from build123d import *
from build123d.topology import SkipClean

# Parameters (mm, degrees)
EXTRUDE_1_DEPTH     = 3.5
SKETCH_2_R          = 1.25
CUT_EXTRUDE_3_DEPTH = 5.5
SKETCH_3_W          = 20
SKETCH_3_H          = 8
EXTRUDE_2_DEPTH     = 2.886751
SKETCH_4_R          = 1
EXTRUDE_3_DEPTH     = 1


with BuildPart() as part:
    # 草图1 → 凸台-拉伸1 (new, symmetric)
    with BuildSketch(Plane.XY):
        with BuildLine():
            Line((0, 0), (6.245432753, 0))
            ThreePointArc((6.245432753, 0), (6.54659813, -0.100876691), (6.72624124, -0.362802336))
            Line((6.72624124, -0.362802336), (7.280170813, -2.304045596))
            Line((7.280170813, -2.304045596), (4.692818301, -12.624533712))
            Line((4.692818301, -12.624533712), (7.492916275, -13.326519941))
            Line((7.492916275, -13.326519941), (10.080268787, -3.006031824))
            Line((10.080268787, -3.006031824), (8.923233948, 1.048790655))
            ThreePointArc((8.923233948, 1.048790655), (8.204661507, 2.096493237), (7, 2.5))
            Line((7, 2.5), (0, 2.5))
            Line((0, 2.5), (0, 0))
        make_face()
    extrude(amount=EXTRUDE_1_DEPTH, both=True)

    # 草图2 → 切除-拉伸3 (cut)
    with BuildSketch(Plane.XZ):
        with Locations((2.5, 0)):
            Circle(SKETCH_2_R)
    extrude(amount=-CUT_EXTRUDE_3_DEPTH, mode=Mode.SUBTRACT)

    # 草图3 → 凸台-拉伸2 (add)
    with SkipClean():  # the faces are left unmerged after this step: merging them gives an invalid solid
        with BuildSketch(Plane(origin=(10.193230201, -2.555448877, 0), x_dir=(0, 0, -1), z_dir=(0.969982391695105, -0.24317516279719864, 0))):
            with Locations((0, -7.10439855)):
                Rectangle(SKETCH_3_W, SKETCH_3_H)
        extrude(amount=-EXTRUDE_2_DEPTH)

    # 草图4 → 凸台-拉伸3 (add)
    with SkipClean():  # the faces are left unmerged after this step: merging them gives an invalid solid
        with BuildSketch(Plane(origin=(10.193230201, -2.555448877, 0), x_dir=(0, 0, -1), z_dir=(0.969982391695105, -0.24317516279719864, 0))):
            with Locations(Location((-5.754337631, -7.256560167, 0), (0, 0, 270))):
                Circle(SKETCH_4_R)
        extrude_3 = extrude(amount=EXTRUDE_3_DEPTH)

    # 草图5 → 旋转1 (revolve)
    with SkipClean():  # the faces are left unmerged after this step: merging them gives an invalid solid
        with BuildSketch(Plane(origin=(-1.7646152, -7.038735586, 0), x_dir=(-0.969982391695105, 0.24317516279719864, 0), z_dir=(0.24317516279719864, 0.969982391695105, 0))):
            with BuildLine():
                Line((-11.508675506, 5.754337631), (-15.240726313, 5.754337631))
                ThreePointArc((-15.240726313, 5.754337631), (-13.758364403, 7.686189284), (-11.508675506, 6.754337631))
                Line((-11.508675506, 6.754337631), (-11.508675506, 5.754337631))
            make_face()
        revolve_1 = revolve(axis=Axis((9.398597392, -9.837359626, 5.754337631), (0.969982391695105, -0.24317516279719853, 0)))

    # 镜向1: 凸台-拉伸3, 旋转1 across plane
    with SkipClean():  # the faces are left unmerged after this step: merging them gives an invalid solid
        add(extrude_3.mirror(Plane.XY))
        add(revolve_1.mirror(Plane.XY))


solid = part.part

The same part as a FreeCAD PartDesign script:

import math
import FreeCAD as App
import Part
import Sketcher

V = App.Vector
Q = App.Units.Quantity

doc = App.newDocument("Part")
body = doc.addObject("PartDesign::Body", "Body")

# Sketch on XY plane
sketch1 = body.newObject("Sketcher::SketchObject", "Sketch")
sketch1.AttachmentSupport = (doc.getObject("XY_Plane"), [""])
sketch1.MapMode = "FlatFace"
sketch1.addGeometry(Part.LineSegment(V(0, 0, 0), V(6.2, 0, 0)), False)
sketch1.addGeometry(Part.ArcOfCircle(Part.Circle(V(6.2, -0.5, 0), V(0, 0, 1), 0.5), math.radians(16), math.radians(90)), False)
sketch1.addGeometry(Part.LineSegment(V(6.7, -0.4, 0), V(7.3, -2.3, 0)), False)
sketch1.addGeometry(Part.LineSegment(V(7.3, -2.3, 0), V(4.7, -12.6, 0)), False)
sketch1.addGeometry(Part.LineSegment(V(4.7, -12.6, 0), V(7.5, -13.3, 0)), False)
sketch1.addGeometry(Part.LineSegment(V(7.5, -13.3, 0), V(10.1, -3, 0)), False)
sketch1.addGeometry(Part.LineSegment(V(10.1, -3, 0), V(8.9, 1, 0)), False)
sketch1.addGeometry(Part.ArcOfCircle(Part.Circle(V(7, 0.5, 0), V(0, 0, 1), 2), math.radians(16), math.radians(90)), False)
sketch1.addGeometry(Part.LineSegment(V(7, 2.5, 0), V(0, 2.5, 0)), False)
sketch1.addGeometry(Part.LineSegment(V(0, 2.5, 0), V(0, 0, 0)), False)
sketch1.addConstraint(Sketcher.Constraint("Tangent", 0, 2, 1, 2))
sketch1.addConstraint(Sketcher.Constraint("Tangent", 1, 1, 2, 1))
sketch1.addConstraint(Sketcher.Constraint("Coincident", 2, 2, 3, 1))
sketch1.addConstraint(Sketcher.Constraint("Coincident", 3, 2, 4, 1))
sketch1.addConstraint(Sketcher.Constraint("Coincident", 4, 2, 5, 1))
sketch1.addConstraint(Sketcher.Constraint("Coincident", 5, 2, 6, 1))
sketch1.addConstraint(Sketcher.Constraint("Tangent", 6, 2, 7, 1))
sketch1.addConstraint(Sketcher.Constraint("Tangent", 7, 2, 8, 1))
sketch1.addConstraint(Sketcher.Constraint("Coincident", 8, 2, 9, 1))
sketch1.addConstraint(Sketcher.Constraint("Coincident", 9, 2, 0, 1))
sketch1.addConstraint(Sketcher.Constraint("Horizontal", 0))
sketch1.addConstraint(Sketcher.Constraint("Horizontal", 8))
sketch1.addConstraint(Sketcher.Constraint("Vertical", 9))
sketch1.addConstraint(Sketcher.Constraint("Coincident", 9, 2, -1, 1))
sketch1.addConstraint(Sketcher.Constraint("Perpendicular", 3, 4))
sketch1.addConstraint(Sketcher.Constraint("Perpendicular", 4, 5))
sketch1.addConstraint(Sketcher.Constraint("Parallel", 2, 6))
sketch1.addConstraint(Sketcher.Constraint("Equal", 3, 5))
sketch1.addConstraint(Sketcher.Constraint("Radius", 7, Q("2 mm")))
sketch1.addConstraint(Sketcher.Constraint("Radius", 1, Q("0.5 mm")))
sketch1.addConstraint(Sketcher.Constraint("DistanceX", 8, 2, 8, 1, Q("7 mm")))
sketch1.addConstraint(Sketcher.Constraint("DistanceY", 9, 2, 9, 1, Q("2.5 mm")))
sketch1.addConstraint(Sketcher.Constraint("DistanceX", 0, 2, 6, 2, Q("2.677801 mm")))
sketch1.addConstraint(Sketcher.Constraint("Distance", 2, Q("2.018728 mm")))
sketch1.addConstraint(Sketcher.Constraint("Distance", 3, Q("10.639872 mm")))
sketch1.addConstraint(Sketcher.Constraint("Distance", 4, Q("2.886751 mm")))
sketch1.addConstraint(Sketcher.Constraint("Distance", 6, Q("4.216671 mm")))
pad1 = body.newObject("PartDesign::Pad", "Pad")
pad1.Profile = sketch1
pad1.Length = 7
pad1.Midplane = True

# Sketch on XZ plane
sketch2 = body.newObject("Sketcher::SketchObject", "Sketch001")
sketch2.AttachmentSupport = (doc.getObject("XZ_Plane"), [""])
sketch2.MapMode = "FlatFace"
sketch2.addGeometry(Part.Circle(V(2.5, 0, 0), V(0, 0, 1), 1.2), False)
sketch2.addConstraint(Sketcher.Constraint("PointOnObject", 0, 3, -1))
sketch2.addConstraint(Sketcher.Constraint("Diameter", 0, Q("2.5 mm")))
sketch2.addConstraint(Sketcher.Constraint("DistanceX", -1, 1, 0, 3, Q("2.5 mm")))
pocket1 = body.newObject("PartDesign::Pocket", "Pocket")
pocket1.Profile = sketch2
pocket1.Length = 5.5

# Sketch on an angled plane
sketch3 = body.newObject("Sketcher::SketchObject", "Sketch002")
sketch3.Placement = App.Placement(V(10.19323, -2.555449, 0), App.Rotation(V(0, 0, -1), V(0.243175163, 0.969982392, 0), V(0.969982392, -0.243175163, 0), "ZXY"))
sketch3.addGeometry(Part.LineSegment(V(-10, -3, 0), V(-10, -11, 0)), False)
sketch3.addGeometry(Part.LineSegment(V(-10, -11, 0), V(10, -11, 0)), False)
sketch3.addGeometry(Part.LineSegment(V(10, -11, 0), V(10, -3, 0)), False)
sketch3.addGeometry(Part.LineSegment(V(10, -3, 0), V(-10, -3, 0)), False)
sketch3.addConstraint(Sketcher.Constraint("Coincident", 0, 2, 1, 1))
sketch3.addConstraint(Sketcher.Constraint("Coincident", 1, 2, 2, 1))
sketch3.addConstraint(Sketcher.Constraint("Coincident", 2, 2, 3, 1))
sketch3.addConstraint(Sketcher.Constraint("Coincident", 3, 2, 0, 1))
sketch3.addConstraint(Sketcher.Constraint("Vertical", 0))
sketch3.addConstraint(Sketcher.Constraint("Horizontal", 1))
sketch3.addConstraint(Sketcher.Constraint("Vertical", 2))
sketch3.addConstraint(Sketcher.Constraint("Horizontal", 3))
sketch3.addConstraint(Sketcher.Constraint("DistanceX", 1, 1, 1, 2, Q("20 mm")))
sketch3.addConstraint(Sketcher.Constraint("DistanceY", 0, 2, 0, 1, Q("8 mm")))
sketch3.addConstraint(Sketcher.Constraint("DistanceX", 0, 2, -1, 1, Q("10 mm")))
sketch3.addConstraint(Sketcher.Constraint("DistanceY", 0, 2, -1, 1, Q("11.104399 mm")))
pad2 = body.newObject("PartDesign::Pad", "Pad001")
pad2.Profile = sketch3
pad2.Length = 2.886751
pad2.Reversed = True

# Sketch on an angled plane
sketch4 = body.newObject("Sketcher::SketchObject", "Sketch003")
sketch4.Placement = App.Placement(V(10.19323, -2.555449, 0), App.Rotation(V(0, 0, -1), V(0.243175163, 0.969982392, 0), V(0.969982392, -0.243175163, 0), "ZXY"))
sketch4.addGeometry(Part.Circle(V(-5.8, -7.3, 0), V(0, 0, 1), 1), False)
sketch4.addConstraint(Sketcher.Constraint("Diameter", 0, Q("2 mm")))
sketch4.addConstraint(Sketcher.Constraint("DistanceY", 0, 3, -1, 1, Q("7.25656 mm")))
sketch4.addConstraint(Sketcher.Constraint("DistanceX", 0, 3, -1, 1, Q("5.754338 mm")))
pad3 = body.newObject("PartDesign::Pad", "Pad002")
pad3.Profile = sketch4
pad3.Length = 1

# Sketch on an angled plane
sketch5 = body.newObject("Sketcher::SketchObject", "Sketch004")
sketch5.Placement = App.Placement(V(-1.764615, -7.038736, 0), App.Rotation(V(-0.969982392, 0.243175163, 0), V(0, 0, 1.000000001), V(0.243175163, 0.969982392, 0), "ZXY"))
sketch5.addGeometry(Part.LineSegment(V(-15.2, 5.8, 0), V(-11.5, 5.8, 0)), False)
sketch5.addGeometry(Part.LineSegment(V(-11.5, 5.8, 0), V(-11.5, 6.8, 0)), False)
sketch5.addGeometry(Part.ArcOfCircle(Part.Circle(V(-13.2, 5.8, 0), V(0, 0, 1), 2), math.radians(30), math.radians(180)), False)
sketch5.addGeometry(Part.LineSegment(V(-11.5, 5.8, 0), V(-15.2, 5.8, 0)), True)  # axis
sketch5.addConstraint(Sketcher.Constraint("Coincident", 0, 2, 1, 1))
sketch5.addConstraint(Sketcher.Constraint("Coincident", 1, 2, 2, 1))
sketch5.addConstraint(Sketcher.Constraint("Coincident", 2, 2, 0, 1))
sketch5.addConstraint(Sketcher.Constraint("Horizontal", 0))
sketch5.addConstraint(Sketcher.Constraint("Vertical", 1))
sketch5.addConstraint(Sketcher.Constraint("Horizontal", 3))
sketch5.addConstraint(Sketcher.Constraint("Coincident", 3, 1, 0, 2))
sketch5.addConstraint(Sketcher.Constraint("Horizontal", 2, 3, 0, 2))
sketch5.addConstraint(Sketcher.Constraint("Equal", 0, 3))
sketch5.addConstraint(Sketcher.Constraint("Radius", 2, Q("2 mm")))
sketch5.addConstraint(Sketcher.Constraint("DistanceY", 1, 1, 1, 2, Q("1 mm")))
sketch5.addConstraint(Sketcher.Constraint("DistanceX", 2, 3, -1, 1, Q("13.240726 mm")))
sketch5.addConstraint(Sketcher.Constraint("DistanceY", -1, 1, 2, 3, Q("5.754338 mm")))
revolution = body.newObject("PartDesign::Revolution", "Revolution")
revolution.Profile = sketch5
revolution.ReferenceAxis = (sketch5, ["Axis0"])
revolution.Angle = 360
doc.recompute()

mirrored = body.newObject("PartDesign::Mirrored", "Mirrored")
mirrored.Originals = [pad3, revolution]
mirrored.MirrorPlane = (doc.getObject("XY_Plane"), [""])
body.Tip = mirrored

doc.recompute()
